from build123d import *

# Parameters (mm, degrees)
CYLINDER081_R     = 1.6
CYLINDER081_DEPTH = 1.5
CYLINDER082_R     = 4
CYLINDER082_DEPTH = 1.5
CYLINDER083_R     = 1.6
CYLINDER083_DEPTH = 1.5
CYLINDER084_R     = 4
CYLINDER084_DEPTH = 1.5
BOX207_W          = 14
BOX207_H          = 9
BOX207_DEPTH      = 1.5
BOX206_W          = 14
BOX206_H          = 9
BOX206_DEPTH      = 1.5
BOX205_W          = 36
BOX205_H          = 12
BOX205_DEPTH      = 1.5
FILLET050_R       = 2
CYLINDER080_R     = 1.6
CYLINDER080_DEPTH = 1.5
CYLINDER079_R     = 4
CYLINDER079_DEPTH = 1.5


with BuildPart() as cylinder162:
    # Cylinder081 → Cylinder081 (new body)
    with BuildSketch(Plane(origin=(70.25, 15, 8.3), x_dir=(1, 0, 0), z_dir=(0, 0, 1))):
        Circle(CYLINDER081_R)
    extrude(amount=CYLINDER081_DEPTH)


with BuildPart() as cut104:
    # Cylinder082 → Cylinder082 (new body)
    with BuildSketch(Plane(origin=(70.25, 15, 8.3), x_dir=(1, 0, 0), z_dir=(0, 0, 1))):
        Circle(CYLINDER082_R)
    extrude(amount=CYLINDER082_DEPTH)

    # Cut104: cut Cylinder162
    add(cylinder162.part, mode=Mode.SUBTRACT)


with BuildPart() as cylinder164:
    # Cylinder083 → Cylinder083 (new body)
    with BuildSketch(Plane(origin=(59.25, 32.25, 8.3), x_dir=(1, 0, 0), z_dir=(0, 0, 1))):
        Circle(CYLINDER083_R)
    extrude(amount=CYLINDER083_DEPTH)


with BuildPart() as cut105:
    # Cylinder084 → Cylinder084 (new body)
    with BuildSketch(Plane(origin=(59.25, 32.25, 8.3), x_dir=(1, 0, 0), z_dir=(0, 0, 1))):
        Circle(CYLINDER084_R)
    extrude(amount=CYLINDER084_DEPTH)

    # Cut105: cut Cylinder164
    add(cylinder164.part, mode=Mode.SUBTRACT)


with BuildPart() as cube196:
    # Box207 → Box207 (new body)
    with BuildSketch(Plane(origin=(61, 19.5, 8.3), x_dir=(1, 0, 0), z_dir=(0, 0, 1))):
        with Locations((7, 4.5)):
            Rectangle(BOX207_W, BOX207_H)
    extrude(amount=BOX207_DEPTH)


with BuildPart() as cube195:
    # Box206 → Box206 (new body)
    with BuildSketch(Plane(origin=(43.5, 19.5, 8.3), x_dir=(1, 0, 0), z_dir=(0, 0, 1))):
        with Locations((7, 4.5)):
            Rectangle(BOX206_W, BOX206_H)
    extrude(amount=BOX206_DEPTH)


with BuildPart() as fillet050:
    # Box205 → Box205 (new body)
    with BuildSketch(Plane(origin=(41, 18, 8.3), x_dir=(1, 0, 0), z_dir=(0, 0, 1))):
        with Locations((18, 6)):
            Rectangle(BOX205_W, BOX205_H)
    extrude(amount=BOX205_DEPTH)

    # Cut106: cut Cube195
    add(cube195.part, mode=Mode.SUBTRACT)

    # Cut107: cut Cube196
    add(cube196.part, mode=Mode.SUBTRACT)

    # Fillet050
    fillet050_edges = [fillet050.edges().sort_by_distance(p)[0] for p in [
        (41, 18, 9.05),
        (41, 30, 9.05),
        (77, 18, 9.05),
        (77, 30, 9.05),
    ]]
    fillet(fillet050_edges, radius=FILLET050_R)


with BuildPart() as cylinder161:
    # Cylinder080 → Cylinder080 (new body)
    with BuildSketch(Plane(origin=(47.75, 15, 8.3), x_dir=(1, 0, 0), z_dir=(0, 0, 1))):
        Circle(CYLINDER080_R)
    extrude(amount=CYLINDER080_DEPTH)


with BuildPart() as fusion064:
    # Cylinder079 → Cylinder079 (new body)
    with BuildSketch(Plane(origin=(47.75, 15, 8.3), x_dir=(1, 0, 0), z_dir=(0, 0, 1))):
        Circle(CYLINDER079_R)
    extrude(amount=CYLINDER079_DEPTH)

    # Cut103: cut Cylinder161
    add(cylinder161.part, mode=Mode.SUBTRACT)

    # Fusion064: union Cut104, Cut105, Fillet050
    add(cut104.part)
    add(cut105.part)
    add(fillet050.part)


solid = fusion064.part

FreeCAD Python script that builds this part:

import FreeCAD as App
import Part
import Sketcher


def edges_at(feature, points):
    """Names of the edges that pass closest to the given points."""
    edges = feature.Shape.Edges
    near = lambda p: min(range(len(edges)), key=lambda i: edges[i].distToShape(Part.Vertex(*p))[0])
    return sorted({f"Edge{near(p) + 1}" for p in points})


def add_polygon(sketch, points):
    """Adds a closed chain of lines whose ends are joined by coincident constraints."""
    first, n = sketch.GeometryCount, len(points)
    for a, b in zip(points, points[1:] + points[:1]):
        sketch.addGeometry(Part.LineSegment(App.Vector(*a, 0), App.Vector(*b, 0)), False)
    for i in range(n):
        sketch.addConstraint(Sketcher.Constraint("Coincident", first + i, 2, first + (i + 1) % n, 1))

doc = App.newDocument("Part")
body = doc.addObject("PartDesign::Body", "Body")

# Sketch on XY plane
sketch1 = doc.addObject("Sketcher::SketchObject", "Sketch")
body.addObject(sketch1)
sketch1.AttachmentSupport = (doc.XY_Plane, [""])
sketch1.MapMode = "FlatFace"
sketch1.AttachmentOffset = App.Placement(App.Vector(0, 0, 8.3), App.Rotation())
sketch1.addGeometry(Part.Circle(App.Vector(70.2, 15, 0), App.Vector(0, 0, 1), 1.6), False)
sketch1.addConstraint([
    Sketcher.Constraint("Diameter", 0, 3.2),
    Sketcher.Constraint("DistanceY", -1, 1, 0, 3, 15.0),
    Sketcher.Constraint("DistanceX", -1, 1, 0, 3, 70.25),
])
pad1 = doc.addObject("PartDesign::Pad", "Pad")
body.addObject(pad1)
pad1.Profile = sketch1
pad1.Length = 1.5
body2 = doc.addObject("PartDesign::Body", "Body001")

# Sketch on XY plane
sketch2 = doc.addObject("Sketcher::SketchObject", "Sketch001")
body2.addObject(sketch2)
sketch2.AttachmentSupport = (doc.getObject("XY_Plane001"), [""])
sketch2.MapMode = "FlatFace"
sketch2.AttachmentOffset = App.Placement(App.Vector(0, 0, 8.3), App.Rotation())
sketch2.addGeometry(Part.Circle(App.Vector(70.2, 15, 0), App.Vector(0, 0, 1), 4), False)
sketch2.addConstraint([
    Sketcher.Constraint("Diameter", 0, 8.0),
    Sketcher.Constraint("DistanceY", -1, 1, 0, 3, 15.0),
    Sketcher.Constraint("DistanceX", -1, 1, 0, 3, 70.25),
])
pad2 = doc.addObject("PartDesign::Pad", "Pad001")
body2.addObject(pad2)
pad2.Profile = sketch2
pad2.Length = 1.5
doc.recompute()

boolean = doc.addObject("PartDesign::Boolean", "Boolean")
body2.addObject(boolean)
boolean.Type = "Cut"
boolean.addObjects([body])
body3 = doc.addObject("PartDesign::Body", "Body002")

# Sketch on XY plane
sketch3 = doc.addObject("Sketcher::SketchObject", "Sketch002")
body3.addObject(sketch3)
sketch3.AttachmentSupport = (doc.getObject("XY_Plane002"), [""])
sketch3.MapMode = "FlatFace"
sketch3.AttachmentOffset = App.Placement(App.Vector(0, 0, 8.3), App.Rotation())
sketch3.addGeometry(Part.Circle(App.Vector(59.2, 32.2, 0), App.Vector(0, 0, 1), 1.6), False)
sketch3.addConstraint([
    Sketcher.Constraint("Diameter", 0, 3.2),
    Sketcher.Constraint("DistanceX", -1, 1, 0, 3, 59.25),
    Sketcher.Constraint("DistanceY", -1, 1, 0, 3, 32.25),
])
pad3 = doc.addObject("PartDesign::Pad", "Pad002")
body3.addObject(pad3)
pad3.Profile = sketch3
pad3.Length = 1.5
body4 = doc.addObject("PartDesign::Body", "Body003")

# Sketch on XY plane
sketch4 = doc.addObject("Sketcher::SketchObject", "Sketch003")
body4.addObject(sketch4)
sketch4.AttachmentSupport = (doc.getObject("XY_Plane003"), [""])
sketch4.MapMode = "FlatFace"
sketch4.AttachmentOffset = App.Placement(App.Vector(0, 0, 8.3), App.Rotation())
sketch4.addGeometry(Part.Circle(App.Vector(59.2, 32.2, 0), App.Vector(0, 0, 1), 4), False)
sketch4.addConstraint([
    Sketcher.Constraint("Diameter", 0, 8.0),
    Sketcher.Constraint("DistanceX", -1, 1, 0, 3, 59.25),
    Sketcher.Constraint("DistanceY", -1, 1, 0, 3, 32.25),
])
pad4 = doc.addObject("PartDesign::Pad", "Pad003")
body4.addObject(pad4)
pad4.Profile = sketch4
pad4.Length = 1.5
doc.recompute()

boolean2 = doc.addObject("PartDesign::Boolean", "Boolean001")
body4.addObject(boolean2)
boolean2.Type = "Cut"
boolean2.addObjects([body3])
body5 = doc.addObject("PartDesign::Body", "Body004")

# Sketch on XY plane
sketch5 = doc.addObject("Sketcher::SketchObject", "Sketch004")
body5.addObject(sketch5)
sketch5.AttachmentSupport = (doc.getObject("XY_Plane004"), [""])
sketch5.MapMode = "FlatFace"
sketch5.AttachmentOffset = App.Placement(App.Vector(0, 0, 8.3), App.Rotation())
add_polygon(sketch5, [(61, 28), (61, 20), (75, 20), (75, 28)])  # lines 0-3
sketch5.addConstraint([
    Sketcher.Constraint("Vertical", 0),
    Sketcher.Constraint("Horizontal", 1),
    Sketcher.Constraint("Vertical", 2),
    Sketcher.Constraint("Horizontal", 3),
    Sketcher.Constraint("DistanceX", 1, 1, 1, 2, 14.0),
    Sketcher.Constraint("DistanceY", 0, 2, 0, 1, 9.0),
    Sketcher.Constraint("DistanceX", -1, 1, 0, 2, 61.0),
    Sketcher.Constraint("DistanceY", -1, 1, 0, 2, 19.5),
])
pad5 = doc.addObject("PartDesign::Pad", "Pad004")
body5.addObject(pad5)
pad5.Profile = sketch5
pad5.Length = 1.5
body6 = doc.addObject("PartDesign::Body", "Body005")

# Sketch on XY plane
sketch6 = doc.addObject("Sketcher::SketchObject", "Sketch005")
body6.addObject(sketch6)
sketch6.AttachmentSupport = (doc.getObject("XY_Plane005"), [""])
sketch6.MapMode = "FlatFace"
sketch6.AttachmentOffset = App.Placement(App.Vector(0, 0, 8.3), App.Rotation())
add_polygon(sketch6, [(44, 28), (44, 20), (58, 20), (58, 28)])  # lines 0-3
sketch6.addConstraint([
    Sketcher.Constraint("Vertical", 0),
    Sketcher.Constraint("Horizontal", 1),
    Sketcher.Constraint("Vertical", 2),
    Sketcher.Constraint("Horizontal", 3),
    Sketcher.Constraint("DistanceX", 1, 1, 1, 2, 14.0),
    Sketcher.Constraint("DistanceY", 0, 2, 0, 1, 9.0),
    Sketcher.Constraint("DistanceX", -1, 1, 0, 2, 43.5),
    Sketcher.Constraint("DistanceY", -1, 1, 0, 2, 19.5),
])
pad6 = doc.addObject("PartDesign::Pad", "Pad005")
body6.addObject(pad6)
pad6.Profile = sketch6
pad6.Length = 1.5
body7 = doc.addObject("PartDesign::Body", "Body006")

# Sketch on XY plane
sketch7 = doc.addObject("Sketcher::SketchObject", "Sketch006")
body7.addObject(sketch7)
sketch7.AttachmentSupport = (doc.getObject("XY_Plane006"), [""])
sketch7.MapMode = "FlatFace"
sketch7.AttachmentOffset = App.Placement(App.Vector(0, 0, 8.3), App.Rotation())
add_polygon(sketch7, [(41, 30), (41, 18), (77, 18), (77, 30)])  # lines 0-3
sketch7.addConstraint([
    Sketcher.Constraint("Vertical", 0),
    Sketcher.Constraint("Horizontal", 1),
    Sketcher.Constraint("Vertical", 2),
    Sketcher.Constraint("Horizontal", 3),
    Sketcher.Constraint("DistanceX", 1, 1, 1, 2, 36.0),
    Sketcher.Constraint("DistanceY", 0, 2, 0, 1, 12.0),
    Sketcher.Constraint("DistanceX", -1, 1, 0, 2, 41.0),
    Sketcher.Constraint("DistanceY", -1, 1, 0, 2, 18.0),
])
pad7 = doc.addObject("PartDesign::Pad", "Pad006")
body7.addObject(pad7)
pad7.Profile = sketch7
pad7.Length = 1.5
doc.recompute()

boolean3 = doc.addObject("PartDesign::Boolean", "Boolean002")
body7.addObject(boolean3)
boolean3.Type = "Cut"
boolean3.addObjects([body6])
doc.recompute()

boolean4 = doc.addObject("PartDesign::Boolean", "Boolean003")
body7.addObject(boolean4)
boolean4.Type = "Cut"
boolean4.addObjects([body5])
doc.recompute()

fillet = doc.addObject("PartDesign::Fillet", "Fillet")
body7.addObject(fillet)
fillet.Base = (boolean4, edges_at(boolean4, [
    (41, 18, 9.05),
    (41, 30, 9.05),
    (77, 18, 9.05),
    (77, 30, 9.05),
]))
fillet.Radius = 2
body8 = doc.addObject("PartDesign::Body", "Body007")

# Sketch on XY plane
sketch8 = doc.addObject("Sketcher::SketchObject", "Sketch007")
body8.addObject(sketch8)
sketch8.AttachmentSupport = (doc.getObject("XY_Plane007"), [""])
sketch8.MapMode = "FlatFace"
sketch8.AttachmentOffset = App.Placement(App.Vector(0, 0, 8.3), App.Rotation())
sketch8.addGeometry(Part.Circle(App.Vector(47.8, 15, 0), App.Vector(0, 0, 1), 1.6), False)
sketch8.addConstraint([
    Sketcher.Constraint("Diameter", 0, 3.2),
    Sketcher.Constraint("DistanceY", -1, 1, 0, 3, 15.0),
    Sketcher.Constraint("DistanceX", -1, 1, 0, 3, 47.75),
])
pad8 = doc.addObject("PartDesign::Pad", "Pad007")
body8.addObject(pad8)
pad8.Profile = sketch8
pad8.Length = 1.5
body9 = doc.addObject("PartDesign::Body", "Body008")
body9.AllowCompound = True

# Sketch on XY plane
sketch9 = doc.addObject("Sketcher::SketchObject", "Sketch008")
body9.addObject(sketch9)
sketch9.AttachmentSupport = (doc.getObject("XY_Plane008"), [""])
sketch9.MapMode = "FlatFace"
sketch9.AttachmentOffset = App.Placement(App.Vector(0, 0, 8.3), App.Rotation())
sketch9.addGeometry(Part.Circle(App.Vector(47.8, 15, 0), App.Vector(0, 0, 1), 4), False)
sketch9.addConstraint([
    Sketcher.Constraint("Diameter", 0, 8.0),
    Sketcher.Constraint("DistanceY", -1, 1, 0, 3, 15.0),
    Sketcher.Constraint("DistanceX", -1, 1, 0, 3, 47.75),
])
pad9 = doc.addObject("PartDesign::Pad", "Pad008")
body9.addObject(pad9)
pad9.Profile = sketch9
pad9.Length = 1.5
doc.recompute()

boolean5 = doc.addObject("PartDesign::Boolean", "Boolean004")
body9.addObject(boolean5)
boolean5.Type = "Cut"
boolean5.addObjects([body8])
doc.recompute()

boolean6 = doc.addObject("PartDesign::Boolean", "Boolean005")
body9.addObject(boolean6)
boolean6.Type = "Fuse"
boolean6.addObjects([body2])
doc.recompute()

boolean7 = doc.addObject("PartDesign::Boolean", "Boolean006")
body9.addObject(boolean7)
boolean7.Type = "Fuse"
boolean7.addObjects([body4])
doc.recompute()

boolean8 = doc.addObject("PartDesign::Boolean", "Boolean007")
body9.addObject(boolean8)
boolean8.Type = "Fuse"
boolean8.addObjects([body7])

doc.recompute()
